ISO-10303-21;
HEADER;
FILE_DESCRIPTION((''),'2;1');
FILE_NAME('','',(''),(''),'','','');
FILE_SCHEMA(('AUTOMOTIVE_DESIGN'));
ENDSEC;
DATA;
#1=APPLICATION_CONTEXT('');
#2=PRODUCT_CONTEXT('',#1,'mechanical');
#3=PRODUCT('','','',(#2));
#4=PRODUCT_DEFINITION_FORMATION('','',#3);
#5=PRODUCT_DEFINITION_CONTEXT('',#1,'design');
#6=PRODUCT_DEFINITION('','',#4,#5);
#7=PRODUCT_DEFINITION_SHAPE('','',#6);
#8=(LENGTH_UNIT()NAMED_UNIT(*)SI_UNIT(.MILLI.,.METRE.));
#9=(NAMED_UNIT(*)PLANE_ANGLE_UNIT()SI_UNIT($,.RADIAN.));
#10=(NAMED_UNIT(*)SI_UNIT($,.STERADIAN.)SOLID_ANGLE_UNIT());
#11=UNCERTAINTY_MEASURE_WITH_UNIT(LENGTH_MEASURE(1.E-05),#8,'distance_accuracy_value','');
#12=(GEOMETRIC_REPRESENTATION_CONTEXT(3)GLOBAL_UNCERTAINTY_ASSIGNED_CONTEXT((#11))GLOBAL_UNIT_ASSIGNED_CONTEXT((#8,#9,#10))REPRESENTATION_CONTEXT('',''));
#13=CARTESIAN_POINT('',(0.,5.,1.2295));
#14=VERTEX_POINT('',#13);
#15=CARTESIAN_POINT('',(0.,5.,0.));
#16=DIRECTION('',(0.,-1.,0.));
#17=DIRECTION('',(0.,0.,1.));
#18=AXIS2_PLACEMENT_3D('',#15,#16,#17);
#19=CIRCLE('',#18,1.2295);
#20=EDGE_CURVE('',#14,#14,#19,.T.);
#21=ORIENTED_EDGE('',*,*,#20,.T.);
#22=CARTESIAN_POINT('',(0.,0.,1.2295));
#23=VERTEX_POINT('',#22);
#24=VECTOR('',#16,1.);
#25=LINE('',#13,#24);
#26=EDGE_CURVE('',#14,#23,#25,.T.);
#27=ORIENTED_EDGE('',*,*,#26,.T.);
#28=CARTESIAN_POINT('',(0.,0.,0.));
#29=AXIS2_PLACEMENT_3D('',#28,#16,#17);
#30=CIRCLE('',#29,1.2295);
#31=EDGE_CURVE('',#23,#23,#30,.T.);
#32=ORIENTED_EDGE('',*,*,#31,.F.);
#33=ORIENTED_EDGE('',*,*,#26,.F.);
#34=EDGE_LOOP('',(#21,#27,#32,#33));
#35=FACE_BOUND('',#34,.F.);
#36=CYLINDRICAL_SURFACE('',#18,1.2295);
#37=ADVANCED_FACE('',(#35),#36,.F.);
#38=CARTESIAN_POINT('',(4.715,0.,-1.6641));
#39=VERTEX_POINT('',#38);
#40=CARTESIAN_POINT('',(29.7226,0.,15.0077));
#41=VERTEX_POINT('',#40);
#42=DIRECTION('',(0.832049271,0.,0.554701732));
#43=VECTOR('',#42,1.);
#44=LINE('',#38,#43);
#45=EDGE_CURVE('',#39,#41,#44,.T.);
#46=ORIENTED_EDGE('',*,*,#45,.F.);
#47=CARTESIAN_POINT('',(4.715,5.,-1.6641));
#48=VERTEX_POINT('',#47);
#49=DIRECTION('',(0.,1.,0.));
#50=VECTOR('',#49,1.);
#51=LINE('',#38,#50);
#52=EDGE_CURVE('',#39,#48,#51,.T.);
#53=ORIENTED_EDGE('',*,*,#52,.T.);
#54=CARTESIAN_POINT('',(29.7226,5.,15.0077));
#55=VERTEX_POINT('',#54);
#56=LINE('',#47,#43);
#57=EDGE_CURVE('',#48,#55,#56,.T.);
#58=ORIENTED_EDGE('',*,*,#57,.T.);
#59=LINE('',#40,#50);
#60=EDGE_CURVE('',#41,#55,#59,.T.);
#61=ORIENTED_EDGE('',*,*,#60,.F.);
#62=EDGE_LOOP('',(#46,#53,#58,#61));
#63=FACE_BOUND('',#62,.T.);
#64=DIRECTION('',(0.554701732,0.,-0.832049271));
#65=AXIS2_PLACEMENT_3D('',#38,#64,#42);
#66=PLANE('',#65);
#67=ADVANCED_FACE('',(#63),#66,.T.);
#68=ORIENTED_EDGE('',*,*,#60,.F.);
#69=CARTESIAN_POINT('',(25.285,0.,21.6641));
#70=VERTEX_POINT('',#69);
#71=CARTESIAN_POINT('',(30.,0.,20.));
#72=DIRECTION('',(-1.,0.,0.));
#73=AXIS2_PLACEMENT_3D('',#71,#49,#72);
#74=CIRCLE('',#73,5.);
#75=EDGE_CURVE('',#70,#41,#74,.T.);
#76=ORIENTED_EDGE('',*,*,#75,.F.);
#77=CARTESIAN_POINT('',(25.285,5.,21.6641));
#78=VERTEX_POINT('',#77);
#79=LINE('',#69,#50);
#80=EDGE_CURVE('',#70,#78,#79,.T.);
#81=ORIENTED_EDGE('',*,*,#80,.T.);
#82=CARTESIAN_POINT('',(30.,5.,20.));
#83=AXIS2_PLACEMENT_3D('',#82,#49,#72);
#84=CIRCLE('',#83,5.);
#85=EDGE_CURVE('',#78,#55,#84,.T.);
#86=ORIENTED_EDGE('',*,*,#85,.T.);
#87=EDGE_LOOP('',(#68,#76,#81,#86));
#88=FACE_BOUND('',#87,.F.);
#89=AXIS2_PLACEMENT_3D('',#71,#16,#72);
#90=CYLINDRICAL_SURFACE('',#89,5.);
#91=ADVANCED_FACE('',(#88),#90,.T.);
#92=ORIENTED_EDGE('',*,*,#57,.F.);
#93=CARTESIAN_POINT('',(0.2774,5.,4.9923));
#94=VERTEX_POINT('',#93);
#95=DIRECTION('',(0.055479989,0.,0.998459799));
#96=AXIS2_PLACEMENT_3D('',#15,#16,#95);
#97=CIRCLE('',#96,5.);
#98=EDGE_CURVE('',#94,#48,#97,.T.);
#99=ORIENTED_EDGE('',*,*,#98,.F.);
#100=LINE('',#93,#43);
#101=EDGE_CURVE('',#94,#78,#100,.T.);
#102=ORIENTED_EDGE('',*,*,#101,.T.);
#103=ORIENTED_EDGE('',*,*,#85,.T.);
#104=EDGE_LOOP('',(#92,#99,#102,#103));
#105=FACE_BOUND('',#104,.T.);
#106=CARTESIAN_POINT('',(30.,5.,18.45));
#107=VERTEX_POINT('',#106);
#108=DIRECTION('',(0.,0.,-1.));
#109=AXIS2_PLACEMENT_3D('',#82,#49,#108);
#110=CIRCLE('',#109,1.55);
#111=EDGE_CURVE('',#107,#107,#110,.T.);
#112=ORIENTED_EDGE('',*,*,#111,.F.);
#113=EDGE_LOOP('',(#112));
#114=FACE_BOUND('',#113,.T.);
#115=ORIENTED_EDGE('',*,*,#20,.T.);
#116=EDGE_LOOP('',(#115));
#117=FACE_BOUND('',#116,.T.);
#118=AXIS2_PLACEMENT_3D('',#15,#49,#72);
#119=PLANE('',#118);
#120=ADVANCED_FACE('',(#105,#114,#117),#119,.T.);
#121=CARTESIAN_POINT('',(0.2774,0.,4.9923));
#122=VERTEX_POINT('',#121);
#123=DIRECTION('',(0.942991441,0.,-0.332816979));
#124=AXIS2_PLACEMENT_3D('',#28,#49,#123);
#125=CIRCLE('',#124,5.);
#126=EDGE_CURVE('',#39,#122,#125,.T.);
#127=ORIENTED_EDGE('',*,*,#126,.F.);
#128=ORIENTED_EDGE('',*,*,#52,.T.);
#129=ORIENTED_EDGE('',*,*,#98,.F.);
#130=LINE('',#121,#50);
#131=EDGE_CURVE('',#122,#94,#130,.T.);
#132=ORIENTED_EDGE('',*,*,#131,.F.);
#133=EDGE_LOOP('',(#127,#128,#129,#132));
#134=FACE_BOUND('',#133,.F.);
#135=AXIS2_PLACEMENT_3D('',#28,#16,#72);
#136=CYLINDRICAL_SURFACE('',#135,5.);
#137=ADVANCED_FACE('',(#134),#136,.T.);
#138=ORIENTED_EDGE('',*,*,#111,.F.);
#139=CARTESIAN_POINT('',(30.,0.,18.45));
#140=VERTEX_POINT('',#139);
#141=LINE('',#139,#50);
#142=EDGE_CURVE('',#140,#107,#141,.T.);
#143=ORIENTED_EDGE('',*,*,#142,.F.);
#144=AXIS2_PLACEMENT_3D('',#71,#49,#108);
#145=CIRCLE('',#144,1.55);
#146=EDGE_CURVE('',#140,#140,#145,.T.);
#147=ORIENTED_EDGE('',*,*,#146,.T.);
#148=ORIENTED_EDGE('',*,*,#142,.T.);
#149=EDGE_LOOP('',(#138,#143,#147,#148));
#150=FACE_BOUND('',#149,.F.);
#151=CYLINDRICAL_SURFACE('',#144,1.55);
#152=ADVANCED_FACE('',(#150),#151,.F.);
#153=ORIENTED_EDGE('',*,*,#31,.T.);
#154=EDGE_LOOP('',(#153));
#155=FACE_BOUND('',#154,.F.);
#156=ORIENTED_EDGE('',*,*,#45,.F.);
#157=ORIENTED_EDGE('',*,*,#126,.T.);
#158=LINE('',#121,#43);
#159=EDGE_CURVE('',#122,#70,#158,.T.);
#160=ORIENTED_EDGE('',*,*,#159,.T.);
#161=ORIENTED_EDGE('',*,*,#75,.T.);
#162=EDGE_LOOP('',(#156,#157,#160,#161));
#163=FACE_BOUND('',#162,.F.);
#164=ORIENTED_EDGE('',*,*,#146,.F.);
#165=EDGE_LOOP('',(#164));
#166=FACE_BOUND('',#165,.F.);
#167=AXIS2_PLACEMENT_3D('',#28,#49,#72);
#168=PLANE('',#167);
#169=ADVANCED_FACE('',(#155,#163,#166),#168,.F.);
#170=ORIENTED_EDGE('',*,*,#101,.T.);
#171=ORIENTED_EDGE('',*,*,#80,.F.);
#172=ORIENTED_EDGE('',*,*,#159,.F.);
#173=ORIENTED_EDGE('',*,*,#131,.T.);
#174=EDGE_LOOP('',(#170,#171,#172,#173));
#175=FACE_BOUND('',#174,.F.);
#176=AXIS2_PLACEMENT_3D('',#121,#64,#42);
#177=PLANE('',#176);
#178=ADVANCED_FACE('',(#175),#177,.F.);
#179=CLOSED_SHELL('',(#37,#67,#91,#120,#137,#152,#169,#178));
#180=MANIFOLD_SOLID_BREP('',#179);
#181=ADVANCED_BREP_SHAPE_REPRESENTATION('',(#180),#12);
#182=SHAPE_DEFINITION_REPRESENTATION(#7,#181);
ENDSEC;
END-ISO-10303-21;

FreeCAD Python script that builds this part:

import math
import FreeCAD as App
import Part
import Sketcher

V = App.Vector
Q = App.Units.Quantity

doc = App.newDocument("Part")
body = doc.addObject("PartDesign::Body", "Body")

# Sketch on XZ plane
sketch1 = doc.addObject("Sketcher::SketchObject", "Sketch")
body.addObject(sketch1)
sketch1.AttachmentSupport = (doc.XZ_Plane, [""])
sketch1.MapMode = "FlatFace"
sketch1.addGeometry([
    Part.ArcOfCircle(Part.Circle(V(0, 0, 0), V(0, 0, 1), 5), math.radians(87), math.radians(341)),
    Part.LineSegment(V(0, 5, 0), V(25, 22, 0)),
    Part.ArcOfCircle(Part.Circle(V(30, 20, 0), V(0, 0, 1), 5), math.radians(-93), math.radians(161)),
    Part.LineSegment(V(30, 15, 0), V(5, -2, 0)),
], False)
sketch1.addConstraint([
    Sketcher.Constraint("Coincident", 0, 1, 1, 1),
    Sketcher.Constraint("Coincident", 1, 2, 2, 2),
    Sketcher.Constraint("Coincident", 2, 1, 3, 1),
    Sketcher.Constraint("Coincident", 3, 2, 0, 2),
    Sketcher.Constraint("Coincident", 0, 3, -1, 1),
    Sketcher.Constraint("Equal", 0, 2),
    Sketcher.Constraint("Parallel", 1, 3),
    Sketcher.Constraint("Equal", 1, 3),
    Sketcher.Constraint("Radius", 0, Q("5 mm")),
    Sketcher.Constraint("DistanceX", -1, 1, 2, 3, Q("30 mm")),
    Sketcher.Constraint("DistanceY", -1, 1, 2, 3, Q("20 mm")),
    Sketcher.Constraint("Angle", 1, Q("33.6902 deg")),
    Sketcher.Constraint("DistanceX", 3, 2, 1, 2, Q("20.57 mm")),
])
pad1 = doc.addObject("PartDesign::Pad", "Pad")
body.addObject(pad1)
pad1.Profile = sketch1
pad1.Length = 5
pad1.Reversed = True

# Sketch on XZ plane
sketch2 = doc.addObject("Sketcher::SketchObject", "Sketch001")
body.addObject(sketch2)
sketch2.AttachmentSupport = (doc.XZ_Plane, [""])
sketch2.MapMode = "FlatFace"
sketch2.addGeometry(Part.Circle(V(30, 20, 0), V(0, 0, 1), 1.6), False)
sketch2.addConstraint([
    Sketcher.Constraint("Diameter", 0, Q("3.1 mm")),
    Sketcher.Constraint("DistanceX", -1, 1, 0, 3, Q("30 mm")),
    Sketcher.Constraint("DistanceY", -1, 1, 0, 3, Q("20 mm")),
])
doc.recompute()
hole = doc.addObject("PartDesign::Hole", "Hole")
body.addObject(hole)
hole.Profile = sketch2
hole.ThreadType = "None"
hole.Diameter = 3.1
hole.DepthType = "ThroughAll"

# Sketch on XZ plane
sketch3 = doc.addObject("Sketcher::SketchObject", "Sketch002")
body.addObject(sketch3)
sketch3.AttachmentSupport = (doc.XZ_Plane, [""])
sketch3.MapMode = "FlatFace"
sketch3.AttachmentOffset = App.Placement(V(0, 0, -5), App.Rotation())
sketch3.addGeometry(Part.Circle(V(0, 0, 0), V(0, 0, 1), 1.2), False)
sketch3.addConstraint([
    Sketcher.Constraint("Coincident", 0, 3, -1, 1),
    Sketcher.Constraint("Diameter", 0, Q("2.459 mm")),
])
doc.recompute()
hole2 = doc.addObject("PartDesign::Hole", "Hole001")
body.addObject(hole2)
hole2.Profile = sketch3
hole2.ThreadType = "None"
hole2.Diameter = 2.459
hole2.DepthType = "ThroughAll"
hole2.Reversed = True

doc.recompute()
